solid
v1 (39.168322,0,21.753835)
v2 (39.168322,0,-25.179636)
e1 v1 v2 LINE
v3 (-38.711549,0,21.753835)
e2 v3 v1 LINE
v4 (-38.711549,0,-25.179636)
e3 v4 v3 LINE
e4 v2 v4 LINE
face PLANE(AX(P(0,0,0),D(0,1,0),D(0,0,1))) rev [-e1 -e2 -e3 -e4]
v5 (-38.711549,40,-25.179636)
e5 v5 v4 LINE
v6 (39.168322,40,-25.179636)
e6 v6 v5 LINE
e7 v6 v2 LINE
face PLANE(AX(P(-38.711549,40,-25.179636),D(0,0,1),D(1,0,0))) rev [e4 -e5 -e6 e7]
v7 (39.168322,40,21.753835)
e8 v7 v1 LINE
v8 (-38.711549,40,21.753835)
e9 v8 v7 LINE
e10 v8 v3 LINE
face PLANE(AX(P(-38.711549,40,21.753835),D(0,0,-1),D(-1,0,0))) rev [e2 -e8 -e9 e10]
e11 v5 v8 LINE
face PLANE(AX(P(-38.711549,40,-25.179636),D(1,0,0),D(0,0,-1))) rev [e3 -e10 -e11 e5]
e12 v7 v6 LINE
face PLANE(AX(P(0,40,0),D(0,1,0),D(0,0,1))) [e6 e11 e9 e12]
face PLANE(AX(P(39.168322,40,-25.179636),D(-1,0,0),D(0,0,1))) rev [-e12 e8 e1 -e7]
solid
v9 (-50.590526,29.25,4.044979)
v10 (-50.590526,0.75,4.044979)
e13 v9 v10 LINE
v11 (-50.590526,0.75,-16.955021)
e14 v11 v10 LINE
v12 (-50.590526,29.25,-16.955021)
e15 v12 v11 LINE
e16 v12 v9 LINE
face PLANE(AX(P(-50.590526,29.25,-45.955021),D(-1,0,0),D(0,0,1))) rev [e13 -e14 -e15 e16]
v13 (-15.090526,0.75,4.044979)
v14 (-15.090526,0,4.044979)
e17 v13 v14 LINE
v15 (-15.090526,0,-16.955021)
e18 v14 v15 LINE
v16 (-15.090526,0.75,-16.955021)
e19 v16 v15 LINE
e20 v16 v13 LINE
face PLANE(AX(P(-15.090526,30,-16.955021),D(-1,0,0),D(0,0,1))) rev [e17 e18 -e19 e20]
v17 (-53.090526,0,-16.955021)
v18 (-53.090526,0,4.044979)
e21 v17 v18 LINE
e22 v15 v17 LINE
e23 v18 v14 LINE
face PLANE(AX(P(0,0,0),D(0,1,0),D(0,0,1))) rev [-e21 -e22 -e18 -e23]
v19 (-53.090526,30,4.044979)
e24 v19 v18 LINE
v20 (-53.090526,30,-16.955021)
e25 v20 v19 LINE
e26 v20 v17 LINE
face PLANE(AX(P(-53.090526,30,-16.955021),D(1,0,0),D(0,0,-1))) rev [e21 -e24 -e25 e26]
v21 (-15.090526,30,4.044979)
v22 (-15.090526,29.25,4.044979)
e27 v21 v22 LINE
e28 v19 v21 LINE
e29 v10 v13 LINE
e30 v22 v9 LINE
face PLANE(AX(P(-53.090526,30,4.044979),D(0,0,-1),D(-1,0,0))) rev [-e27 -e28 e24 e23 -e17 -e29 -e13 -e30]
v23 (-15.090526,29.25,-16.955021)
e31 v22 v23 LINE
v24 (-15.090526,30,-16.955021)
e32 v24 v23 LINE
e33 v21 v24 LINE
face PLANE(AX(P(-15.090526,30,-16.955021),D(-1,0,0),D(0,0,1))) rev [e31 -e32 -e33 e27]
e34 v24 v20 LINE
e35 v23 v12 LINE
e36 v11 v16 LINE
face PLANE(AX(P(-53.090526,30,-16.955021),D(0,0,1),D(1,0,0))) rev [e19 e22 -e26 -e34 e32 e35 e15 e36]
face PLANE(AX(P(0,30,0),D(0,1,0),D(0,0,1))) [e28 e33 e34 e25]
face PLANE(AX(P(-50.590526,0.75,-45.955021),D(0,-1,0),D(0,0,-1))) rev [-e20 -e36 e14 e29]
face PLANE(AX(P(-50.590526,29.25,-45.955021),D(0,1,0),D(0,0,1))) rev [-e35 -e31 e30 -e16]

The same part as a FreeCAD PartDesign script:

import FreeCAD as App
import Part
import Sketcher

V = App.Vector

doc = App.newDocument("Part")
body = doc.addObject("PartDesign::Body", "Body")

# Sketch on XZ plane
sketch1 = doc.addObject("Sketcher::SketchObject", "Sketch")
body.addObject(sketch1)
sketch1.AttachmentSupport = (doc.XZ_Plane, [""])
sketch1.MapMode = "FlatFace"
sketch1.addGeometry(Part.LineSegment(V(-39, -25, 0), V(-39, 22, 0)), False)
sketch1.addGeometry(Part.LineSegment(V(-39, 22, 0), V(39, 22, 0)), False)
sketch1.addGeometry(Part.LineSegment(V(39, 22, 0), V(39, -25, 0)), False)
sketch1.addGeometry(Part.LineSegment(V(39, -25, 0), V(-39, -25, 0)), False)
sketch1.addConstraint(Sketcher.Constraint("Coincident", 0, 2, 1, 1))
sketch1.addConstraint(Sketcher.Constraint("Coincident", 1, 2, 2, 1))
sketch1.addConstraint(Sketcher.Constraint("Coincident", 2, 2, 3, 1))
sketch1.addConstraint(Sketcher.Constraint("Coincident", 3, 2, 0, 1))
sketch1.addConstraint(Sketcher.Constraint("Vertical", 0))
sketch1.addConstraint(Sketcher.Constraint("Horizontal", 1))
sketch1.addConstraint(Sketcher.Constraint("Vertical", 2))
sketch1.addConstraint(Sketcher.Constraint("Horizontal", 3))
sketch1.addConstraint(Sketcher.Constraint("DistanceX", 1, 1, 1, 2, 77.879872))
sketch1.addConstraint(Sketcher.Constraint("DistanceY", 0, 1, 0, 2, 46.933471))
sketch1.addConstraint(Sketcher.Constraint("DistanceX", 0, 2, -1, 1, 38.711549))
sketch1.addConstraint(Sketcher.Constraint("DistanceY", -1, 1, 0, 2, 21.753835))
pad1 = doc.addObject("PartDesign::Pad", "Pad")
body.addObject(pad1)
pad1.Profile = sketch1
pad1.Length = 40
pad1.Reversed = True
body2 = doc.addObject("PartDesign::Body", "Body001")

# Sketch on XZ plane
sketch2 = doc.addObject("Sketcher::SketchObject", "Sketch001")
body2.addObject(sketch2)
sketch2.AttachmentSupport = (doc.getObject("XZ_Plane001"), [""])
sketch2.MapMode = "FlatFace"
sketch2.addGeometry(Part.LineSegment(V(-53, -17, 0), V(-53, 4, 0)), False)
sketch2.addGeometry(Part.LineSegment(V(-53, 4, 0), V(-15, 4, 0)), False)
sketch2.addGeometry(Part.LineSegment(V(-15, 4, 0), V(-15, -17, 0)), False)
sketch2.addGeometry(Part.LineSegment(V(-15, -17, 0), V(-53, -17, 0)), False)
sketch2.addConstraint(Sketcher.Constraint("Coincident", 0, 2, 1, 1))
sketch2.addConstraint(Sketcher.Constraint("Coincident", 1, 2, 2, 1))
sketch2.addConstraint(Sketcher.Constraint("Coincident", 2, 2, 3, 1))
sketch2.addConstraint(Sketcher.Constraint("Coincident", 3, 2, 0, 1))
sketch2.addConstraint(Sketcher.Constraint("Vertical", 0))
sketch2.addConstraint(Sketcher.Constraint("Horizontal", 1))
sketch2.addConstraint(Sketcher.Constraint("Vertical", 2))
sketch2.addConstraint(Sketcher.Constraint("Horizontal", 3))
sketch2.addConstraint(Sketcher.Constraint("DistanceX", 1, 1, 1, 2, 38.0))
sketch2.addConstraint(Sketcher.Constraint("DistanceY", 0, 1, 0, 2, 21.0))
sketch2.addConstraint(Sketcher.Constraint("DistanceY", -1, 1, 0, 2, 4.044979))
sketch2.addConstraint(Sketcher.Constraint("DistanceX", 0, 2, -1, 1, 53.090526))
pad2 = doc.addObject("PartDesign::Pad", "Pad001")
body2.addObject(pad2)
pad2.Profile = sketch2
pad2.Length = 30
pad2.Reversed = True

# Sketch on XY plane
sketch3 = doc.addObject("Sketcher::SketchObject", "Sketch002")
body2.addObject(sketch3)
sketch3.AttachmentSupport = (doc.getObject("XY_Plane001"), [""])
sketch3.MapMode = "FlatFace"
sketch3.AttachmentOffset = App.Placement(V(0, 0, 4.044979), App.Rotation())
sketch3.addGeometry(Part.LineSegment(V(-51, 29, 0), V(-51, 1, 0)), False)
sketch3.addGeometry(Part.LineSegment(V(-51, 1, 0), V(-11, 1, 0)), False)
sketch3.addGeometry(Part.LineSegment(V(-11, 1, 0), V(-11, 29, 0)), False)
sketch3.addGeometry(Part.LineSegment(V(-11, 29, 0), V(-51, 29, 0)), False)
sketch3.addConstraint(Sketcher.Constraint("Coincident", 0, 2, 1, 1))
sketch3.addConstraint(Sketcher.Constraint("Coincident", 1, 2, 2, 1))
sketch3.addConstraint(Sketcher.Constraint("Coincident", 2, 2, 3, 1))
sketch3.addConstraint(Sketcher.Constraint("Coincident", 3, 2, 0, 1))
sketch3.addConstraint(Sketcher.Constraint("Vertical", 0))
sketch3.addConstraint(Sketcher.Constraint("Horizontal", 1))
sketch3.addConstraint(Sketcher.Constraint("Vertical", 2))
sketch3.addConstraint(Sketcher.Constraint("Horizontal", 3))
sketch3.addConstraint(Sketcher.Constraint("DistanceX", 1, 1, 1, 2, 40.0))
sketch3.addConstraint(Sketcher.Constraint("DistanceY", 0, 2, 0, 1, 28.5))
sketch3.addConstraint(Sketcher.Constraint("DistanceY", -1, 1, 0, 2, 0.75))
sketch3.addConstraint(Sketcher.Constraint("DistanceX", 0, 2, -1, 1, 50.590526))
pocket1 = doc.addObject("PartDesign::Pocket", "Pocket")
body2.addObject(pocket1)
pocket1.Profile = sketch3
pocket1.Length = 50

doc.recompute()
